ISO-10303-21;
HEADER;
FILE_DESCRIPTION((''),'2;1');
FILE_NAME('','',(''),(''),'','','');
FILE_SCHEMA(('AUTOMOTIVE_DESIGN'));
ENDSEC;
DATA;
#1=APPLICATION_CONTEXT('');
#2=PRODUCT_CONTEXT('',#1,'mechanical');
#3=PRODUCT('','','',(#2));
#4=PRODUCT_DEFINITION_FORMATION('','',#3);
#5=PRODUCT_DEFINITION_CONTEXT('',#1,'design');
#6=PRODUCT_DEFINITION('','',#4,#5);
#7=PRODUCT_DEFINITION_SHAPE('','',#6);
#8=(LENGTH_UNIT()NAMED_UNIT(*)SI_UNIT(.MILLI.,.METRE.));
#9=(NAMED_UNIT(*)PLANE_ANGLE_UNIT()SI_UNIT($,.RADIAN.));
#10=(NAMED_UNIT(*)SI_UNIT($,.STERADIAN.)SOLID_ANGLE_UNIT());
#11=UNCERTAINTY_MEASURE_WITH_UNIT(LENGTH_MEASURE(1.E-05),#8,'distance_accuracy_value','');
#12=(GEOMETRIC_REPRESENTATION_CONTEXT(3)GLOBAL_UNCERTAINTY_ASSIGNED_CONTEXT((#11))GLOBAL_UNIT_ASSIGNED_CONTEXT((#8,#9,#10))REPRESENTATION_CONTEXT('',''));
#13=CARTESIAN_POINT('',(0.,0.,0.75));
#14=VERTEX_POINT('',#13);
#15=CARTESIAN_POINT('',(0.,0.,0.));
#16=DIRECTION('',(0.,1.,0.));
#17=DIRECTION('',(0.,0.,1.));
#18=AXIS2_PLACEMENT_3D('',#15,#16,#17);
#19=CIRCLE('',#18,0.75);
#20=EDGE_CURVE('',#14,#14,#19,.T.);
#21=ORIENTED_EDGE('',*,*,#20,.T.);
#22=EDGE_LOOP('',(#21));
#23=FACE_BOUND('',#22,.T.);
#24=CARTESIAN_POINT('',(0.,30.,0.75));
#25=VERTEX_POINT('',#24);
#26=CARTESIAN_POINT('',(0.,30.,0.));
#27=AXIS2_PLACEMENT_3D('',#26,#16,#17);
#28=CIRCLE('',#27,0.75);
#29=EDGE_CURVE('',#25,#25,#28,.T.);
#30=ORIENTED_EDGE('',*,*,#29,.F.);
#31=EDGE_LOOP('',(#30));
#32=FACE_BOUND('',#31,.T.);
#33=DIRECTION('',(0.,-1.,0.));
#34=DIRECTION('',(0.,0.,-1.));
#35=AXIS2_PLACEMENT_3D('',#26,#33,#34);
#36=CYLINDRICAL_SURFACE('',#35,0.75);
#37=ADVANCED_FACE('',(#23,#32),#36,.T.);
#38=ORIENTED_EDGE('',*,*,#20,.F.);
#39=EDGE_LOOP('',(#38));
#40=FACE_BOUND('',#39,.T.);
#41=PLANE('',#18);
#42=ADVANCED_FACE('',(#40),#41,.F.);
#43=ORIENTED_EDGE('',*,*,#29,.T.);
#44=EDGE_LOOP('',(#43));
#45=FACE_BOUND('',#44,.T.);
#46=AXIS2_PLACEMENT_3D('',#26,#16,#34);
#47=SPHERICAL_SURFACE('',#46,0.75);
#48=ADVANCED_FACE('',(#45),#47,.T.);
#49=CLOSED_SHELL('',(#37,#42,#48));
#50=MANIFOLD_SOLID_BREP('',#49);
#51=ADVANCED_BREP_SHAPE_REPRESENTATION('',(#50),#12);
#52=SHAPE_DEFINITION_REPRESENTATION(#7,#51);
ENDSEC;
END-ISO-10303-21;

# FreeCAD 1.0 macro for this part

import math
import FreeCAD as App
import Part
import Sketcher

V = App.Vector
Q = App.Units.Quantity

doc = App.newDocument("Part")
body = doc.addObject("PartDesign::Body", "Body")

# Sketch on XZ plane
sketch1 = body.newObject("Sketcher::SketchObject", "Sketch")
sketch1.AttachmentSupport = (doc.getObject("XZ_Plane"), [""])
sketch1.MapMode = "FlatFace"
sketch1.addGeometry(Part.Circle(V(0, 0, 0), V(0, 0, 1), 0.8), False)
sketch1.addConstraint([
    Sketcher.Constraint("Coincident", 0, 3, -1, 1),
    Sketcher.Constraint("Diameter", 0, Q("1.5 mm")),
])
pad1 = body.newObject("PartDesign::Pad", "Pad")
pad1.Profile = sketch1
pad1.Length = 30
pad1.Reversed = True

# Sketch on YZ plane
sketch2 = body.newObject("Sketcher::SketchObject", "Sketch001")
sketch2.AttachmentSupport = (doc.getObject("YZ_Plane"), [""])
sketch2.MapMode = "FlatFace"
sketch2.addGeometry([
    Part.LineSegment(V(30.8, 0, 0), V(29.2, 0, 0)),
    Part.ArcOfCircle(Part.Circle(V(30, 0, 0), V(0, 0, 1), 0.8), math.radians(180), math.radians(360)),
], False)
sketch2.addConstraint([
    Sketcher.Constraint("Coincident", 0, 1, 1, 2),
    Sketcher.Constraint("Coincident", 1, 1, 0, 2),
    Sketcher.Constraint("Horizontal", 0),
    Sketcher.Constraint("PointOnObject", 1, 3, -1),
    Sketcher.Constraint("PointOnObject", 0, 1, -1),
    Sketcher.Constraint("Radius", 1, Q("0.75 mm")),
    Sketcher.Constraint("DistanceX", -1, 1, 1, 3, Q("30 mm")),
])
revolution = body.newObject("PartDesign::Revolution", "Revolution")
revolution.Profile = sketch2
revolution.ReferenceAxis = (sketch2, ["H_Axis"])
revolution.Angle = 360

doc.recompute()
